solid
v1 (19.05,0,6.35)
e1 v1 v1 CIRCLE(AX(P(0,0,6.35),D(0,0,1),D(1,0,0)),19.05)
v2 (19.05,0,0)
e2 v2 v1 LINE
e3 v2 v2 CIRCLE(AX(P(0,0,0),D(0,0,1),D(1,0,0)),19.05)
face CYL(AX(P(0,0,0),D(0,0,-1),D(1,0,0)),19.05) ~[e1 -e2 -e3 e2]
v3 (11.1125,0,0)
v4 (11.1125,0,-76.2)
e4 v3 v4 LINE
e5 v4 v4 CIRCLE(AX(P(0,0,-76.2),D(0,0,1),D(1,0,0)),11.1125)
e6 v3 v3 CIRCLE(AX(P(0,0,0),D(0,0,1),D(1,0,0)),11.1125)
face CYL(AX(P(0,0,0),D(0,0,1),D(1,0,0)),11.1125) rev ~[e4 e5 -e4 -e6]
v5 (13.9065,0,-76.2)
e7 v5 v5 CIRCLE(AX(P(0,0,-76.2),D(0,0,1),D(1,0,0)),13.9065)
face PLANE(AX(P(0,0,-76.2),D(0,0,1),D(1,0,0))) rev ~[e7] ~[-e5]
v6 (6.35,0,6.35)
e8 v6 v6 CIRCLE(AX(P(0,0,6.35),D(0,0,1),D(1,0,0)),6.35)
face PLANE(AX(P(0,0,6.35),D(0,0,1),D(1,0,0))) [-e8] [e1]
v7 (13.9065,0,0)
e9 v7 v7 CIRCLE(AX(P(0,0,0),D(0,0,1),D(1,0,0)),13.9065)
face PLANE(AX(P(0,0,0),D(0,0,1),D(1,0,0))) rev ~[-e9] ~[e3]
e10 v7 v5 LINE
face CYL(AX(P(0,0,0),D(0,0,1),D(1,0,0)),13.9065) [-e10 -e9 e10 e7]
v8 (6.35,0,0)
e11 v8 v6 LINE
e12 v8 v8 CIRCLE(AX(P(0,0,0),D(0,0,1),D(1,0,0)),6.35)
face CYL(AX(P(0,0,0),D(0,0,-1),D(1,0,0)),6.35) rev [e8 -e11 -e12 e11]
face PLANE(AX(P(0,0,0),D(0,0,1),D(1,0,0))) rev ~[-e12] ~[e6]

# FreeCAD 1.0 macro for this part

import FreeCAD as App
import Part
import Sketcher
Q = App.Units.Quantity

doc = App.newDocument("Part")
body = doc.addObject("PartDesign::Body", "Body")

sketch1 = body.newObject("Sketcher::SketchObject", "Sketch")
sketch1.AttachmentSupport = (doc.getObject("XY_Plane"), [""])
sketch1.MapMode = "FlatFace"
sketch1.addGeometry([
    Part.Circle(App.Vector(0, 0, 0), App.Vector(0, 0, 1), 13.9065),
    Part.Circle(App.Vector(0, 0, 0), App.Vector(0, 0, 1), 11.1125),
], False)
sketch1.addConstraint([
    Sketcher.Constraint("Coincident", 0, 3, -1, 1),
    Sketcher.Constraint("Coincident", 1, 3, -1, 1),
    Sketcher.Constraint("Diameter", 0, Q("1.095 in")),
    Sketcher.Constraint("Diameter", 1, Q("0.875 in")),
])
pad1 = body.newObject("PartDesign::Pad", "Pad")
pad1.Profile = sketch1
pad1.Length = Q("3 in")
pad1.Reversed = True

sketch2 = body.newObject("Sketcher::SketchObject", "Sketch001")
sketch2.AttachmentSupport = (doc.getObject("XY_Plane"), [""])
sketch2.MapMode = "FlatFace"
sketch2.addGeometry([
    Part.Circle(App.Vector(0, 0, 0), App.Vector(0, 0, 1), 19.05),
    Part.Circle(App.Vector(0, 0, 0), App.Vector(0, 0, 1), 6.35),
], False)
sketch2.addConstraint([
    Sketcher.Constraint("Coincident", 0, 3, -1, 1),
    Sketcher.Constraint("Coincident", 1, 3, -1, 1),
    Sketcher.Constraint("Diameter", 0, Q("1.5 in")),
    Sketcher.Constraint("Diameter", 1, Q("0.5 in")),
])
pad2 = body.newObject("PartDesign::Pad", "Pad001")
pad2.Profile = sketch2
pad2.Length = Q("0.25 in")

doc.recompute()
